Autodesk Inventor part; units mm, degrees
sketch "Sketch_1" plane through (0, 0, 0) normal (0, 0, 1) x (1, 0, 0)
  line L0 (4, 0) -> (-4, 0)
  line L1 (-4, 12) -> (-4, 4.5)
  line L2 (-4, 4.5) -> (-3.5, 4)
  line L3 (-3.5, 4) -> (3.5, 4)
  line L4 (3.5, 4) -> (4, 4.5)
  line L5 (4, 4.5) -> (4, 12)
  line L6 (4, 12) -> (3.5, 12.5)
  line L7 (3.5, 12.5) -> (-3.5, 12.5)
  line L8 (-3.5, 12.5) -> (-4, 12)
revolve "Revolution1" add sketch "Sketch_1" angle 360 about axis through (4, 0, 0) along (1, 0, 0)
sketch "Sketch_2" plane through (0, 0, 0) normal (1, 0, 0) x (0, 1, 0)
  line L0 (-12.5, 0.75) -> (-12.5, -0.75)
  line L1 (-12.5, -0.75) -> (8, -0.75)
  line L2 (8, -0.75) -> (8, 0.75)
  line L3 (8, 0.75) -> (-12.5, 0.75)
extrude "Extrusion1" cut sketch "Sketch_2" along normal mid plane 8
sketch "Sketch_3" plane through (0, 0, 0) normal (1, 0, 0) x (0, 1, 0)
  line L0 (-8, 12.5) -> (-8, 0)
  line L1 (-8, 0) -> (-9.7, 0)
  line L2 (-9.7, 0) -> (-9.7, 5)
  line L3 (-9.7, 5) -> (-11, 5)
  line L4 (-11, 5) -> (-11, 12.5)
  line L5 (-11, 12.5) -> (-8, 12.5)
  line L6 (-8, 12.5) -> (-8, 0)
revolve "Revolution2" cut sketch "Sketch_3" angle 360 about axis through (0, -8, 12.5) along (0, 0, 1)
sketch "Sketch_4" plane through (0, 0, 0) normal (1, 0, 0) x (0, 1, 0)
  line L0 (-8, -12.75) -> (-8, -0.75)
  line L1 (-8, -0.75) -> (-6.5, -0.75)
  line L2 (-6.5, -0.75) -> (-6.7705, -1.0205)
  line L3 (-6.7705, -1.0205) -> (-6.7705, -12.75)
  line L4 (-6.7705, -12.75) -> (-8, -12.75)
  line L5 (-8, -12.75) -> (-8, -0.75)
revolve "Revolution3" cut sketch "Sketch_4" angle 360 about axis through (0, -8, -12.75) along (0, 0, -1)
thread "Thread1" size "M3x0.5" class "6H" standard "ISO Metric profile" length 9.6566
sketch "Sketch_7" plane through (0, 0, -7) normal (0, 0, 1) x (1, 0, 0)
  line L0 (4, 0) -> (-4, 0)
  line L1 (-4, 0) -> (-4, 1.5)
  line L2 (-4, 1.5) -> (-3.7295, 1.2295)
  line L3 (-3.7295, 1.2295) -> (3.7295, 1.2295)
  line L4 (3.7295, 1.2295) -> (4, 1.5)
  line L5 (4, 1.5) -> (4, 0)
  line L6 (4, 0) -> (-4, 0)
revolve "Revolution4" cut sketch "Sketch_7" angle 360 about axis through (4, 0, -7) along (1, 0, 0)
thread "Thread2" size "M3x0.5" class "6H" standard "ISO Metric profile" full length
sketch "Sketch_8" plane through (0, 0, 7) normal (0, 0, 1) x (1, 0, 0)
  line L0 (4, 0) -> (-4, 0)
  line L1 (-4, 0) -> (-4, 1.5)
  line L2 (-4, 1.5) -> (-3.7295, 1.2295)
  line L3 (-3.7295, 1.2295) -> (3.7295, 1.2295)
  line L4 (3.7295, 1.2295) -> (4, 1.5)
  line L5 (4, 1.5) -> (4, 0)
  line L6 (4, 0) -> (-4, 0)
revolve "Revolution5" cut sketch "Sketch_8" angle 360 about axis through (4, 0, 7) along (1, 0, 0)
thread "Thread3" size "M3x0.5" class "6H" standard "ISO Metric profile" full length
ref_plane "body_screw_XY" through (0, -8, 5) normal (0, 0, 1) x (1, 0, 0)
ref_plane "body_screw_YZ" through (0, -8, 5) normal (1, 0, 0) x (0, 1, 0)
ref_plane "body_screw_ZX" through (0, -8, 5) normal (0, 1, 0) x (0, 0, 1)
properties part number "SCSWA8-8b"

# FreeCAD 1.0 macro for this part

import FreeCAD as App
import Part
import Sketcher

V = App.Vector
Q = App.Units.Quantity


def add_polygon(sketch, points):
    """Adds a closed chain of lines whose ends are joined by coincident constraints."""
    first, n = sketch.GeometryCount, len(points)
    for a, b in zip(points, points[1:] + points[:1]):
        sketch.addGeometry(Part.LineSegment(App.Vector(*a, 0), App.Vector(*b, 0)), False)
    for i in range(n):
        sketch.addConstraint(Sketcher.Constraint("Coincident", first + i, 2, first + (i + 1) % n, 1))

doc = App.newDocument("Part")
body = doc.addObject("PartDesign::Body", "Body")

# Sketch on XY plane
sketch1 = body.newObject("Sketcher::SketchObject", "Sketch")
sketch1.AttachmentSupport = (doc.getObject("XY_Plane"), [""])
sketch1.MapMode = "FlatFace"
add_polygon(sketch1, [(-3.5, 12.5), (-4, 12), (-4, 4.5), (-3.5, 4), (3.5, 4), (4, 4.5), (4, 12), (3.5, 12.5)])  # lines 0-7
sketch1.addConstraint(Sketcher.Constraint("Vertical", 1))
sketch1.addConstraint(Sketcher.Constraint("Horizontal", 3))
sketch1.addConstraint(Sketcher.Constraint("Vertical", 5))
sketch1.addConstraint(Sketcher.Constraint("Horizontal", 7))
sketch1.addConstraint(Sketcher.Constraint("Symmetric", 1, 2, 4, 2, -2))
sketch1.addConstraint(Sketcher.Constraint("Perpendicular", 0, 2))
sketch1.addConstraint(Sketcher.Constraint("Perpendicular", 2, 4))
sketch1.addConstraint(Sketcher.Constraint("Perpendicular", 4, 6))
sketch1.addConstraint(Sketcher.Constraint("Horizontal", 0, 2, 5, 2))
sketch1.addConstraint(Sketcher.Constraint("Vertical", 3, 2, 6, 2))
sketch1.addConstraint(Sketcher.Constraint("Vertical", 2, 2, 7, 2))
sketch1.addConstraint(Sketcher.Constraint("DistanceX", 3, 1, 3, 2, Q("7 mm")))
sketch1.addConstraint(Sketcher.Constraint("DistanceY", 1, 2, 1, 1, Q("7.5 mm")))
sketch1.addConstraint(Sketcher.Constraint("DistanceX", 0, 2, -1, 1, Q("4 mm")))
sketch1.addConstraint(Sketcher.Constraint("DistanceY", -1, 1, 0, 2, Q("12 mm")))
revolution = body.newObject("PartDesign::Revolution", "Revolution")
revolution.Profile = sketch1
revolution.ReferenceAxis = (sketch1, ["H_Axis"])
revolution.Angle = 360

# Sketch on YZ plane
sketch2 = body.newObject("Sketcher::SketchObject", "Sketch001")
sketch2.AttachmentSupport = (doc.getObject("YZ_Plane"), [""])
sketch2.MapMode = "FlatFace"
add_polygon(sketch2, [(8, 0.8), (-12.5, 0.8), (-12.5, -0.8), (8, -0.8)])  # lines 0-3
sketch2.addConstraint(Sketcher.Constraint("Horizontal", 0))
sketch2.addConstraint(Sketcher.Constraint("Vertical", 1))
sketch2.addConstraint(Sketcher.Constraint("Horizontal", 2))
sketch2.addConstraint(Sketcher.Constraint("Vertical", 3))
sketch2.addConstraint(Sketcher.Constraint("DistanceX", 0, 2, 0, 1, Q("20.5 mm")))
sketch2.addConstraint(Sketcher.Constraint("DistanceY", 1, 2, 1, 1, Q("1.5 mm")))
sketch2.addConstraint(Sketcher.Constraint("DistanceX", -1, 1, 2, 2, Q("8 mm")))
sketch2.addConstraint(Sketcher.Constraint("DistanceY", -1, 1, 0, 2, Q("0.75 mm")))
pocket1 = body.newObject("PartDesign::Pocket", "Pocket")
pocket1.Profile = sketch2
pocket1.Length = 8
pocket1.Midplane = True

# Sketch on YZ plane
sketch3 = body.newObject("Sketcher::SketchObject", "Sketch002")
sketch3.AttachmentSupport = (doc.getObject("YZ_Plane"), [""])
sketch3.MapMode = "FlatFace"
add_polygon(sketch3, [(-8, 0), (-8, 12.5), (-11, 12.5), (-11, 5), (-9.7, 5), (-9.7, 0)])  # lines 0-5
sketch3.addGeometry(Part.LineSegment(V(-8, 0, 0), V(-8, 12.5, 0)), True)  # axis
sketch3.addConstraint(Sketcher.Constraint("Vertical", 0))
sketch3.addConstraint(Sketcher.Constraint("Horizontal", 1))
sketch3.addConstraint(Sketcher.Constraint("Vertical", 2))
sketch3.addConstraint(Sketcher.Constraint("Horizontal", 3))
sketch3.addConstraint(Sketcher.Constraint("Vertical", 4))
sketch3.addConstraint(Sketcher.Constraint("Horizontal", 5))
sketch3.addConstraint(Sketcher.Constraint("Vertical", 6))
sketch3.addConstraint(Sketcher.Constraint("Coincident", 6, 1, 5, 2))
sketch3.addConstraint(Sketcher.Constraint("PointOnObject", 4, 2, -1))
sketch3.addConstraint(Sketcher.Constraint("Horizontal", 1, 2, 6, 2))
sketch3.addConstraint(Sketcher.Constraint("DistanceX", 1, 2, 1, 1, Q("3 mm")))
sketch3.addConstraint(Sketcher.Constraint("DistanceY", 4, 2, 4, 1, Q("5 mm")))
sketch3.addConstraint(Sketcher.Constraint("DistanceX", 3, 1, 3, 2, Q("1.3 mm")))
sketch3.addConstraint(Sketcher.Constraint("DistanceY", 0, 1, 0, 2, Q("12.5 mm")))
sketch3.addConstraint(Sketcher.Constraint("DistanceX", 0, 2, -1, 1, Q("8 mm")))
groove = body.newObject("PartDesign::Groove", "Groove")
groove.Profile = sketch3
groove.ReferenceAxis = (sketch3, ["Axis0"])
groove.Angle = 360

# Sketch on YZ plane
sketch4 = body.newObject("Sketcher::SketchObject", "Sketch003")
sketch4.AttachmentSupport = (doc.getObject("YZ_Plane"), [""])
sketch4.MapMode = "FlatFace"
add_polygon(sketch4, [(-8, -0.75), (-8, -12.75), (-6.77, -12.75), (-6.77, -1.02), (-6.5, -0.75)])  # lines 0-4
sketch4.addGeometry(Part.LineSegment(V(-8, -0.75, 0), V(-8, -12.75, 0)), True)  # axis
sketch4.addConstraint(Sketcher.Constraint("Vertical", 0))
sketch4.addConstraint(Sketcher.Constraint("Horizontal", 1))
sketch4.addConstraint(Sketcher.Constraint("Vertical", 2))
sketch4.addConstraint(Sketcher.Constraint("Horizontal", 4))
sketch4.addConstraint(Sketcher.Constraint("Vertical", 5))
sketch4.addConstraint(Sketcher.Constraint("Coincident", 5, 1, 4, 2))
sketch4.addConstraint(Sketcher.Constraint("Horizontal", 1, 2, 5, 2))
sketch4.addConstraint(Sketcher.Constraint("DistanceY", 0, 2, 0, 1, Q("12 mm")))
sketch4.addConstraint(Sketcher.Constraint("Angle", 3, Q("45 deg")))
sketch4.addConstraint(Sketcher.Constraint("DistanceX", 4, 2, 4, 1, Q("1.5 mm")))
sketch4.addConstraint(Sketcher.Constraint("DistanceX", 0, 2, -1, 1, Q("8 mm")))
sketch4.addConstraint(Sketcher.Constraint("DistanceY", 0, 2, -1, 1, Q("12.75 mm")))
sketch4.addConstraint(Sketcher.Constraint("DistanceX", 1, 1, 1, 2, Q("1.2295 mm")))
groove2 = body.newObject("PartDesign::Groove", "Groove001")
groove2.Profile = sketch4
groove2.ReferenceAxis = (sketch4, ["Axis0"])
groove2.Angle = 360

# Sketch on XY plane
sketch5 = body.newObject("Sketcher::SketchObject", "Sketch004")
sketch5.AttachmentSupport = (doc.getObject("XY_Plane"), [""])
sketch5.MapMode = "FlatFace"
sketch5.AttachmentOffset = App.Placement(V(0, 0, -7), App.Rotation())
add_polygon(sketch5, [(-4, 0), (4, 0), (4, 1.5), (3.73, 1.23), (-3.73, 1.23), (-4, 1.5)])  # lines 0-5
sketch5.addConstraint(Sketcher.Constraint("Horizontal", 0))
sketch5.addConstraint(Sketcher.Constraint("Vertical", 1))
sketch5.addConstraint(Sketcher.Constraint("Horizontal", 3))
sketch5.addConstraint(Sketcher.Constraint("Vertical", 5))
sketch5.addConstraint(Sketcher.Constraint("Symmetric", 0, 2, 5, 2, -1, 1))
sketch5.addConstraint(Sketcher.Constraint("Perpendicular", 2, 4))
sketch5.addConstraint(Sketcher.Constraint("Horizontal", 1, 2, 4, 2))
sketch5.addConstraint(Sketcher.Constraint("Equal", 2, 4))
sketch5.addConstraint(Sketcher.Constraint("DistanceX", 0, 1, 0, 2, Q("8 mm")))
sketch5.addConstraint(Sketcher.Constraint("DistanceY", 1, 1, 1, 2, Q("1.5 mm")))
sketch5.addConstraint(Sketcher.Constraint("DistanceX", 3, 2, 3, 1, Q("7.459 mm")))
groove3 = body.newObject("PartDesign::Groove", "Groove002")
groove3.Profile = sketch5
groove3.ReferenceAxis = (sketch5, ["H_Axis"])
groove3.Angle = 360

# Sketch on XY plane
sketch6 = body.newObject("Sketcher::SketchObject", "Sketch005")
sketch6.AttachmentSupport = (doc.getObject("XY_Plane"), [""])
sketch6.MapMode = "FlatFace"
sketch6.AttachmentOffset = App.Placement(V(0, 0, 7), App.Rotation())
add_polygon(sketch6, [(-4, 0), (4, 0), (4, 1.5), (3.73, 1.23), (-3.73, 1.23), (-4, 1.5)])  # lines 0-5
sketch6.addConstraint(Sketcher.Constraint("Horizontal", 0))
sketch6.addConstraint(Sketcher.Constraint("Vertical", 1))
sketch6.addConstraint(Sketcher.Constraint("Horizontal", 3))
sketch6.addConstraint(Sketcher.Constraint("Vertical", 5))
sketch6.addConstraint(Sketcher.Constraint("Symmetric", 0, 2, 5, 2, -1, 1))
sketch6.addConstraint(Sketcher.Constraint("Perpendicular", 2, 4))
sketch6.addConstraint(Sketcher.Constraint("Horizontal", 1, 2, 4, 2))
sketch6.addConstraint(Sketcher.Constraint("Equal", 2, 4))
sketch6.addConstraint(Sketcher.Constraint("DistanceX", 0, 1, 0, 2, Q("8 mm")))
sketch6.addConstraint(Sketcher.Constraint("DistanceY", 1, 1, 1, 2, Q("1.5 mm")))
sketch6.addConstraint(Sketcher.Constraint("DistanceX", 3, 2, 3, 1, Q("7.459 mm")))
groove4 = body.newObject("PartDesign::Groove", "Groove003")
groove4.Profile = sketch6
groove4.ReferenceAxis = (sketch6, ["H_Axis"])
groove4.Angle = 360

doc.recompute()
